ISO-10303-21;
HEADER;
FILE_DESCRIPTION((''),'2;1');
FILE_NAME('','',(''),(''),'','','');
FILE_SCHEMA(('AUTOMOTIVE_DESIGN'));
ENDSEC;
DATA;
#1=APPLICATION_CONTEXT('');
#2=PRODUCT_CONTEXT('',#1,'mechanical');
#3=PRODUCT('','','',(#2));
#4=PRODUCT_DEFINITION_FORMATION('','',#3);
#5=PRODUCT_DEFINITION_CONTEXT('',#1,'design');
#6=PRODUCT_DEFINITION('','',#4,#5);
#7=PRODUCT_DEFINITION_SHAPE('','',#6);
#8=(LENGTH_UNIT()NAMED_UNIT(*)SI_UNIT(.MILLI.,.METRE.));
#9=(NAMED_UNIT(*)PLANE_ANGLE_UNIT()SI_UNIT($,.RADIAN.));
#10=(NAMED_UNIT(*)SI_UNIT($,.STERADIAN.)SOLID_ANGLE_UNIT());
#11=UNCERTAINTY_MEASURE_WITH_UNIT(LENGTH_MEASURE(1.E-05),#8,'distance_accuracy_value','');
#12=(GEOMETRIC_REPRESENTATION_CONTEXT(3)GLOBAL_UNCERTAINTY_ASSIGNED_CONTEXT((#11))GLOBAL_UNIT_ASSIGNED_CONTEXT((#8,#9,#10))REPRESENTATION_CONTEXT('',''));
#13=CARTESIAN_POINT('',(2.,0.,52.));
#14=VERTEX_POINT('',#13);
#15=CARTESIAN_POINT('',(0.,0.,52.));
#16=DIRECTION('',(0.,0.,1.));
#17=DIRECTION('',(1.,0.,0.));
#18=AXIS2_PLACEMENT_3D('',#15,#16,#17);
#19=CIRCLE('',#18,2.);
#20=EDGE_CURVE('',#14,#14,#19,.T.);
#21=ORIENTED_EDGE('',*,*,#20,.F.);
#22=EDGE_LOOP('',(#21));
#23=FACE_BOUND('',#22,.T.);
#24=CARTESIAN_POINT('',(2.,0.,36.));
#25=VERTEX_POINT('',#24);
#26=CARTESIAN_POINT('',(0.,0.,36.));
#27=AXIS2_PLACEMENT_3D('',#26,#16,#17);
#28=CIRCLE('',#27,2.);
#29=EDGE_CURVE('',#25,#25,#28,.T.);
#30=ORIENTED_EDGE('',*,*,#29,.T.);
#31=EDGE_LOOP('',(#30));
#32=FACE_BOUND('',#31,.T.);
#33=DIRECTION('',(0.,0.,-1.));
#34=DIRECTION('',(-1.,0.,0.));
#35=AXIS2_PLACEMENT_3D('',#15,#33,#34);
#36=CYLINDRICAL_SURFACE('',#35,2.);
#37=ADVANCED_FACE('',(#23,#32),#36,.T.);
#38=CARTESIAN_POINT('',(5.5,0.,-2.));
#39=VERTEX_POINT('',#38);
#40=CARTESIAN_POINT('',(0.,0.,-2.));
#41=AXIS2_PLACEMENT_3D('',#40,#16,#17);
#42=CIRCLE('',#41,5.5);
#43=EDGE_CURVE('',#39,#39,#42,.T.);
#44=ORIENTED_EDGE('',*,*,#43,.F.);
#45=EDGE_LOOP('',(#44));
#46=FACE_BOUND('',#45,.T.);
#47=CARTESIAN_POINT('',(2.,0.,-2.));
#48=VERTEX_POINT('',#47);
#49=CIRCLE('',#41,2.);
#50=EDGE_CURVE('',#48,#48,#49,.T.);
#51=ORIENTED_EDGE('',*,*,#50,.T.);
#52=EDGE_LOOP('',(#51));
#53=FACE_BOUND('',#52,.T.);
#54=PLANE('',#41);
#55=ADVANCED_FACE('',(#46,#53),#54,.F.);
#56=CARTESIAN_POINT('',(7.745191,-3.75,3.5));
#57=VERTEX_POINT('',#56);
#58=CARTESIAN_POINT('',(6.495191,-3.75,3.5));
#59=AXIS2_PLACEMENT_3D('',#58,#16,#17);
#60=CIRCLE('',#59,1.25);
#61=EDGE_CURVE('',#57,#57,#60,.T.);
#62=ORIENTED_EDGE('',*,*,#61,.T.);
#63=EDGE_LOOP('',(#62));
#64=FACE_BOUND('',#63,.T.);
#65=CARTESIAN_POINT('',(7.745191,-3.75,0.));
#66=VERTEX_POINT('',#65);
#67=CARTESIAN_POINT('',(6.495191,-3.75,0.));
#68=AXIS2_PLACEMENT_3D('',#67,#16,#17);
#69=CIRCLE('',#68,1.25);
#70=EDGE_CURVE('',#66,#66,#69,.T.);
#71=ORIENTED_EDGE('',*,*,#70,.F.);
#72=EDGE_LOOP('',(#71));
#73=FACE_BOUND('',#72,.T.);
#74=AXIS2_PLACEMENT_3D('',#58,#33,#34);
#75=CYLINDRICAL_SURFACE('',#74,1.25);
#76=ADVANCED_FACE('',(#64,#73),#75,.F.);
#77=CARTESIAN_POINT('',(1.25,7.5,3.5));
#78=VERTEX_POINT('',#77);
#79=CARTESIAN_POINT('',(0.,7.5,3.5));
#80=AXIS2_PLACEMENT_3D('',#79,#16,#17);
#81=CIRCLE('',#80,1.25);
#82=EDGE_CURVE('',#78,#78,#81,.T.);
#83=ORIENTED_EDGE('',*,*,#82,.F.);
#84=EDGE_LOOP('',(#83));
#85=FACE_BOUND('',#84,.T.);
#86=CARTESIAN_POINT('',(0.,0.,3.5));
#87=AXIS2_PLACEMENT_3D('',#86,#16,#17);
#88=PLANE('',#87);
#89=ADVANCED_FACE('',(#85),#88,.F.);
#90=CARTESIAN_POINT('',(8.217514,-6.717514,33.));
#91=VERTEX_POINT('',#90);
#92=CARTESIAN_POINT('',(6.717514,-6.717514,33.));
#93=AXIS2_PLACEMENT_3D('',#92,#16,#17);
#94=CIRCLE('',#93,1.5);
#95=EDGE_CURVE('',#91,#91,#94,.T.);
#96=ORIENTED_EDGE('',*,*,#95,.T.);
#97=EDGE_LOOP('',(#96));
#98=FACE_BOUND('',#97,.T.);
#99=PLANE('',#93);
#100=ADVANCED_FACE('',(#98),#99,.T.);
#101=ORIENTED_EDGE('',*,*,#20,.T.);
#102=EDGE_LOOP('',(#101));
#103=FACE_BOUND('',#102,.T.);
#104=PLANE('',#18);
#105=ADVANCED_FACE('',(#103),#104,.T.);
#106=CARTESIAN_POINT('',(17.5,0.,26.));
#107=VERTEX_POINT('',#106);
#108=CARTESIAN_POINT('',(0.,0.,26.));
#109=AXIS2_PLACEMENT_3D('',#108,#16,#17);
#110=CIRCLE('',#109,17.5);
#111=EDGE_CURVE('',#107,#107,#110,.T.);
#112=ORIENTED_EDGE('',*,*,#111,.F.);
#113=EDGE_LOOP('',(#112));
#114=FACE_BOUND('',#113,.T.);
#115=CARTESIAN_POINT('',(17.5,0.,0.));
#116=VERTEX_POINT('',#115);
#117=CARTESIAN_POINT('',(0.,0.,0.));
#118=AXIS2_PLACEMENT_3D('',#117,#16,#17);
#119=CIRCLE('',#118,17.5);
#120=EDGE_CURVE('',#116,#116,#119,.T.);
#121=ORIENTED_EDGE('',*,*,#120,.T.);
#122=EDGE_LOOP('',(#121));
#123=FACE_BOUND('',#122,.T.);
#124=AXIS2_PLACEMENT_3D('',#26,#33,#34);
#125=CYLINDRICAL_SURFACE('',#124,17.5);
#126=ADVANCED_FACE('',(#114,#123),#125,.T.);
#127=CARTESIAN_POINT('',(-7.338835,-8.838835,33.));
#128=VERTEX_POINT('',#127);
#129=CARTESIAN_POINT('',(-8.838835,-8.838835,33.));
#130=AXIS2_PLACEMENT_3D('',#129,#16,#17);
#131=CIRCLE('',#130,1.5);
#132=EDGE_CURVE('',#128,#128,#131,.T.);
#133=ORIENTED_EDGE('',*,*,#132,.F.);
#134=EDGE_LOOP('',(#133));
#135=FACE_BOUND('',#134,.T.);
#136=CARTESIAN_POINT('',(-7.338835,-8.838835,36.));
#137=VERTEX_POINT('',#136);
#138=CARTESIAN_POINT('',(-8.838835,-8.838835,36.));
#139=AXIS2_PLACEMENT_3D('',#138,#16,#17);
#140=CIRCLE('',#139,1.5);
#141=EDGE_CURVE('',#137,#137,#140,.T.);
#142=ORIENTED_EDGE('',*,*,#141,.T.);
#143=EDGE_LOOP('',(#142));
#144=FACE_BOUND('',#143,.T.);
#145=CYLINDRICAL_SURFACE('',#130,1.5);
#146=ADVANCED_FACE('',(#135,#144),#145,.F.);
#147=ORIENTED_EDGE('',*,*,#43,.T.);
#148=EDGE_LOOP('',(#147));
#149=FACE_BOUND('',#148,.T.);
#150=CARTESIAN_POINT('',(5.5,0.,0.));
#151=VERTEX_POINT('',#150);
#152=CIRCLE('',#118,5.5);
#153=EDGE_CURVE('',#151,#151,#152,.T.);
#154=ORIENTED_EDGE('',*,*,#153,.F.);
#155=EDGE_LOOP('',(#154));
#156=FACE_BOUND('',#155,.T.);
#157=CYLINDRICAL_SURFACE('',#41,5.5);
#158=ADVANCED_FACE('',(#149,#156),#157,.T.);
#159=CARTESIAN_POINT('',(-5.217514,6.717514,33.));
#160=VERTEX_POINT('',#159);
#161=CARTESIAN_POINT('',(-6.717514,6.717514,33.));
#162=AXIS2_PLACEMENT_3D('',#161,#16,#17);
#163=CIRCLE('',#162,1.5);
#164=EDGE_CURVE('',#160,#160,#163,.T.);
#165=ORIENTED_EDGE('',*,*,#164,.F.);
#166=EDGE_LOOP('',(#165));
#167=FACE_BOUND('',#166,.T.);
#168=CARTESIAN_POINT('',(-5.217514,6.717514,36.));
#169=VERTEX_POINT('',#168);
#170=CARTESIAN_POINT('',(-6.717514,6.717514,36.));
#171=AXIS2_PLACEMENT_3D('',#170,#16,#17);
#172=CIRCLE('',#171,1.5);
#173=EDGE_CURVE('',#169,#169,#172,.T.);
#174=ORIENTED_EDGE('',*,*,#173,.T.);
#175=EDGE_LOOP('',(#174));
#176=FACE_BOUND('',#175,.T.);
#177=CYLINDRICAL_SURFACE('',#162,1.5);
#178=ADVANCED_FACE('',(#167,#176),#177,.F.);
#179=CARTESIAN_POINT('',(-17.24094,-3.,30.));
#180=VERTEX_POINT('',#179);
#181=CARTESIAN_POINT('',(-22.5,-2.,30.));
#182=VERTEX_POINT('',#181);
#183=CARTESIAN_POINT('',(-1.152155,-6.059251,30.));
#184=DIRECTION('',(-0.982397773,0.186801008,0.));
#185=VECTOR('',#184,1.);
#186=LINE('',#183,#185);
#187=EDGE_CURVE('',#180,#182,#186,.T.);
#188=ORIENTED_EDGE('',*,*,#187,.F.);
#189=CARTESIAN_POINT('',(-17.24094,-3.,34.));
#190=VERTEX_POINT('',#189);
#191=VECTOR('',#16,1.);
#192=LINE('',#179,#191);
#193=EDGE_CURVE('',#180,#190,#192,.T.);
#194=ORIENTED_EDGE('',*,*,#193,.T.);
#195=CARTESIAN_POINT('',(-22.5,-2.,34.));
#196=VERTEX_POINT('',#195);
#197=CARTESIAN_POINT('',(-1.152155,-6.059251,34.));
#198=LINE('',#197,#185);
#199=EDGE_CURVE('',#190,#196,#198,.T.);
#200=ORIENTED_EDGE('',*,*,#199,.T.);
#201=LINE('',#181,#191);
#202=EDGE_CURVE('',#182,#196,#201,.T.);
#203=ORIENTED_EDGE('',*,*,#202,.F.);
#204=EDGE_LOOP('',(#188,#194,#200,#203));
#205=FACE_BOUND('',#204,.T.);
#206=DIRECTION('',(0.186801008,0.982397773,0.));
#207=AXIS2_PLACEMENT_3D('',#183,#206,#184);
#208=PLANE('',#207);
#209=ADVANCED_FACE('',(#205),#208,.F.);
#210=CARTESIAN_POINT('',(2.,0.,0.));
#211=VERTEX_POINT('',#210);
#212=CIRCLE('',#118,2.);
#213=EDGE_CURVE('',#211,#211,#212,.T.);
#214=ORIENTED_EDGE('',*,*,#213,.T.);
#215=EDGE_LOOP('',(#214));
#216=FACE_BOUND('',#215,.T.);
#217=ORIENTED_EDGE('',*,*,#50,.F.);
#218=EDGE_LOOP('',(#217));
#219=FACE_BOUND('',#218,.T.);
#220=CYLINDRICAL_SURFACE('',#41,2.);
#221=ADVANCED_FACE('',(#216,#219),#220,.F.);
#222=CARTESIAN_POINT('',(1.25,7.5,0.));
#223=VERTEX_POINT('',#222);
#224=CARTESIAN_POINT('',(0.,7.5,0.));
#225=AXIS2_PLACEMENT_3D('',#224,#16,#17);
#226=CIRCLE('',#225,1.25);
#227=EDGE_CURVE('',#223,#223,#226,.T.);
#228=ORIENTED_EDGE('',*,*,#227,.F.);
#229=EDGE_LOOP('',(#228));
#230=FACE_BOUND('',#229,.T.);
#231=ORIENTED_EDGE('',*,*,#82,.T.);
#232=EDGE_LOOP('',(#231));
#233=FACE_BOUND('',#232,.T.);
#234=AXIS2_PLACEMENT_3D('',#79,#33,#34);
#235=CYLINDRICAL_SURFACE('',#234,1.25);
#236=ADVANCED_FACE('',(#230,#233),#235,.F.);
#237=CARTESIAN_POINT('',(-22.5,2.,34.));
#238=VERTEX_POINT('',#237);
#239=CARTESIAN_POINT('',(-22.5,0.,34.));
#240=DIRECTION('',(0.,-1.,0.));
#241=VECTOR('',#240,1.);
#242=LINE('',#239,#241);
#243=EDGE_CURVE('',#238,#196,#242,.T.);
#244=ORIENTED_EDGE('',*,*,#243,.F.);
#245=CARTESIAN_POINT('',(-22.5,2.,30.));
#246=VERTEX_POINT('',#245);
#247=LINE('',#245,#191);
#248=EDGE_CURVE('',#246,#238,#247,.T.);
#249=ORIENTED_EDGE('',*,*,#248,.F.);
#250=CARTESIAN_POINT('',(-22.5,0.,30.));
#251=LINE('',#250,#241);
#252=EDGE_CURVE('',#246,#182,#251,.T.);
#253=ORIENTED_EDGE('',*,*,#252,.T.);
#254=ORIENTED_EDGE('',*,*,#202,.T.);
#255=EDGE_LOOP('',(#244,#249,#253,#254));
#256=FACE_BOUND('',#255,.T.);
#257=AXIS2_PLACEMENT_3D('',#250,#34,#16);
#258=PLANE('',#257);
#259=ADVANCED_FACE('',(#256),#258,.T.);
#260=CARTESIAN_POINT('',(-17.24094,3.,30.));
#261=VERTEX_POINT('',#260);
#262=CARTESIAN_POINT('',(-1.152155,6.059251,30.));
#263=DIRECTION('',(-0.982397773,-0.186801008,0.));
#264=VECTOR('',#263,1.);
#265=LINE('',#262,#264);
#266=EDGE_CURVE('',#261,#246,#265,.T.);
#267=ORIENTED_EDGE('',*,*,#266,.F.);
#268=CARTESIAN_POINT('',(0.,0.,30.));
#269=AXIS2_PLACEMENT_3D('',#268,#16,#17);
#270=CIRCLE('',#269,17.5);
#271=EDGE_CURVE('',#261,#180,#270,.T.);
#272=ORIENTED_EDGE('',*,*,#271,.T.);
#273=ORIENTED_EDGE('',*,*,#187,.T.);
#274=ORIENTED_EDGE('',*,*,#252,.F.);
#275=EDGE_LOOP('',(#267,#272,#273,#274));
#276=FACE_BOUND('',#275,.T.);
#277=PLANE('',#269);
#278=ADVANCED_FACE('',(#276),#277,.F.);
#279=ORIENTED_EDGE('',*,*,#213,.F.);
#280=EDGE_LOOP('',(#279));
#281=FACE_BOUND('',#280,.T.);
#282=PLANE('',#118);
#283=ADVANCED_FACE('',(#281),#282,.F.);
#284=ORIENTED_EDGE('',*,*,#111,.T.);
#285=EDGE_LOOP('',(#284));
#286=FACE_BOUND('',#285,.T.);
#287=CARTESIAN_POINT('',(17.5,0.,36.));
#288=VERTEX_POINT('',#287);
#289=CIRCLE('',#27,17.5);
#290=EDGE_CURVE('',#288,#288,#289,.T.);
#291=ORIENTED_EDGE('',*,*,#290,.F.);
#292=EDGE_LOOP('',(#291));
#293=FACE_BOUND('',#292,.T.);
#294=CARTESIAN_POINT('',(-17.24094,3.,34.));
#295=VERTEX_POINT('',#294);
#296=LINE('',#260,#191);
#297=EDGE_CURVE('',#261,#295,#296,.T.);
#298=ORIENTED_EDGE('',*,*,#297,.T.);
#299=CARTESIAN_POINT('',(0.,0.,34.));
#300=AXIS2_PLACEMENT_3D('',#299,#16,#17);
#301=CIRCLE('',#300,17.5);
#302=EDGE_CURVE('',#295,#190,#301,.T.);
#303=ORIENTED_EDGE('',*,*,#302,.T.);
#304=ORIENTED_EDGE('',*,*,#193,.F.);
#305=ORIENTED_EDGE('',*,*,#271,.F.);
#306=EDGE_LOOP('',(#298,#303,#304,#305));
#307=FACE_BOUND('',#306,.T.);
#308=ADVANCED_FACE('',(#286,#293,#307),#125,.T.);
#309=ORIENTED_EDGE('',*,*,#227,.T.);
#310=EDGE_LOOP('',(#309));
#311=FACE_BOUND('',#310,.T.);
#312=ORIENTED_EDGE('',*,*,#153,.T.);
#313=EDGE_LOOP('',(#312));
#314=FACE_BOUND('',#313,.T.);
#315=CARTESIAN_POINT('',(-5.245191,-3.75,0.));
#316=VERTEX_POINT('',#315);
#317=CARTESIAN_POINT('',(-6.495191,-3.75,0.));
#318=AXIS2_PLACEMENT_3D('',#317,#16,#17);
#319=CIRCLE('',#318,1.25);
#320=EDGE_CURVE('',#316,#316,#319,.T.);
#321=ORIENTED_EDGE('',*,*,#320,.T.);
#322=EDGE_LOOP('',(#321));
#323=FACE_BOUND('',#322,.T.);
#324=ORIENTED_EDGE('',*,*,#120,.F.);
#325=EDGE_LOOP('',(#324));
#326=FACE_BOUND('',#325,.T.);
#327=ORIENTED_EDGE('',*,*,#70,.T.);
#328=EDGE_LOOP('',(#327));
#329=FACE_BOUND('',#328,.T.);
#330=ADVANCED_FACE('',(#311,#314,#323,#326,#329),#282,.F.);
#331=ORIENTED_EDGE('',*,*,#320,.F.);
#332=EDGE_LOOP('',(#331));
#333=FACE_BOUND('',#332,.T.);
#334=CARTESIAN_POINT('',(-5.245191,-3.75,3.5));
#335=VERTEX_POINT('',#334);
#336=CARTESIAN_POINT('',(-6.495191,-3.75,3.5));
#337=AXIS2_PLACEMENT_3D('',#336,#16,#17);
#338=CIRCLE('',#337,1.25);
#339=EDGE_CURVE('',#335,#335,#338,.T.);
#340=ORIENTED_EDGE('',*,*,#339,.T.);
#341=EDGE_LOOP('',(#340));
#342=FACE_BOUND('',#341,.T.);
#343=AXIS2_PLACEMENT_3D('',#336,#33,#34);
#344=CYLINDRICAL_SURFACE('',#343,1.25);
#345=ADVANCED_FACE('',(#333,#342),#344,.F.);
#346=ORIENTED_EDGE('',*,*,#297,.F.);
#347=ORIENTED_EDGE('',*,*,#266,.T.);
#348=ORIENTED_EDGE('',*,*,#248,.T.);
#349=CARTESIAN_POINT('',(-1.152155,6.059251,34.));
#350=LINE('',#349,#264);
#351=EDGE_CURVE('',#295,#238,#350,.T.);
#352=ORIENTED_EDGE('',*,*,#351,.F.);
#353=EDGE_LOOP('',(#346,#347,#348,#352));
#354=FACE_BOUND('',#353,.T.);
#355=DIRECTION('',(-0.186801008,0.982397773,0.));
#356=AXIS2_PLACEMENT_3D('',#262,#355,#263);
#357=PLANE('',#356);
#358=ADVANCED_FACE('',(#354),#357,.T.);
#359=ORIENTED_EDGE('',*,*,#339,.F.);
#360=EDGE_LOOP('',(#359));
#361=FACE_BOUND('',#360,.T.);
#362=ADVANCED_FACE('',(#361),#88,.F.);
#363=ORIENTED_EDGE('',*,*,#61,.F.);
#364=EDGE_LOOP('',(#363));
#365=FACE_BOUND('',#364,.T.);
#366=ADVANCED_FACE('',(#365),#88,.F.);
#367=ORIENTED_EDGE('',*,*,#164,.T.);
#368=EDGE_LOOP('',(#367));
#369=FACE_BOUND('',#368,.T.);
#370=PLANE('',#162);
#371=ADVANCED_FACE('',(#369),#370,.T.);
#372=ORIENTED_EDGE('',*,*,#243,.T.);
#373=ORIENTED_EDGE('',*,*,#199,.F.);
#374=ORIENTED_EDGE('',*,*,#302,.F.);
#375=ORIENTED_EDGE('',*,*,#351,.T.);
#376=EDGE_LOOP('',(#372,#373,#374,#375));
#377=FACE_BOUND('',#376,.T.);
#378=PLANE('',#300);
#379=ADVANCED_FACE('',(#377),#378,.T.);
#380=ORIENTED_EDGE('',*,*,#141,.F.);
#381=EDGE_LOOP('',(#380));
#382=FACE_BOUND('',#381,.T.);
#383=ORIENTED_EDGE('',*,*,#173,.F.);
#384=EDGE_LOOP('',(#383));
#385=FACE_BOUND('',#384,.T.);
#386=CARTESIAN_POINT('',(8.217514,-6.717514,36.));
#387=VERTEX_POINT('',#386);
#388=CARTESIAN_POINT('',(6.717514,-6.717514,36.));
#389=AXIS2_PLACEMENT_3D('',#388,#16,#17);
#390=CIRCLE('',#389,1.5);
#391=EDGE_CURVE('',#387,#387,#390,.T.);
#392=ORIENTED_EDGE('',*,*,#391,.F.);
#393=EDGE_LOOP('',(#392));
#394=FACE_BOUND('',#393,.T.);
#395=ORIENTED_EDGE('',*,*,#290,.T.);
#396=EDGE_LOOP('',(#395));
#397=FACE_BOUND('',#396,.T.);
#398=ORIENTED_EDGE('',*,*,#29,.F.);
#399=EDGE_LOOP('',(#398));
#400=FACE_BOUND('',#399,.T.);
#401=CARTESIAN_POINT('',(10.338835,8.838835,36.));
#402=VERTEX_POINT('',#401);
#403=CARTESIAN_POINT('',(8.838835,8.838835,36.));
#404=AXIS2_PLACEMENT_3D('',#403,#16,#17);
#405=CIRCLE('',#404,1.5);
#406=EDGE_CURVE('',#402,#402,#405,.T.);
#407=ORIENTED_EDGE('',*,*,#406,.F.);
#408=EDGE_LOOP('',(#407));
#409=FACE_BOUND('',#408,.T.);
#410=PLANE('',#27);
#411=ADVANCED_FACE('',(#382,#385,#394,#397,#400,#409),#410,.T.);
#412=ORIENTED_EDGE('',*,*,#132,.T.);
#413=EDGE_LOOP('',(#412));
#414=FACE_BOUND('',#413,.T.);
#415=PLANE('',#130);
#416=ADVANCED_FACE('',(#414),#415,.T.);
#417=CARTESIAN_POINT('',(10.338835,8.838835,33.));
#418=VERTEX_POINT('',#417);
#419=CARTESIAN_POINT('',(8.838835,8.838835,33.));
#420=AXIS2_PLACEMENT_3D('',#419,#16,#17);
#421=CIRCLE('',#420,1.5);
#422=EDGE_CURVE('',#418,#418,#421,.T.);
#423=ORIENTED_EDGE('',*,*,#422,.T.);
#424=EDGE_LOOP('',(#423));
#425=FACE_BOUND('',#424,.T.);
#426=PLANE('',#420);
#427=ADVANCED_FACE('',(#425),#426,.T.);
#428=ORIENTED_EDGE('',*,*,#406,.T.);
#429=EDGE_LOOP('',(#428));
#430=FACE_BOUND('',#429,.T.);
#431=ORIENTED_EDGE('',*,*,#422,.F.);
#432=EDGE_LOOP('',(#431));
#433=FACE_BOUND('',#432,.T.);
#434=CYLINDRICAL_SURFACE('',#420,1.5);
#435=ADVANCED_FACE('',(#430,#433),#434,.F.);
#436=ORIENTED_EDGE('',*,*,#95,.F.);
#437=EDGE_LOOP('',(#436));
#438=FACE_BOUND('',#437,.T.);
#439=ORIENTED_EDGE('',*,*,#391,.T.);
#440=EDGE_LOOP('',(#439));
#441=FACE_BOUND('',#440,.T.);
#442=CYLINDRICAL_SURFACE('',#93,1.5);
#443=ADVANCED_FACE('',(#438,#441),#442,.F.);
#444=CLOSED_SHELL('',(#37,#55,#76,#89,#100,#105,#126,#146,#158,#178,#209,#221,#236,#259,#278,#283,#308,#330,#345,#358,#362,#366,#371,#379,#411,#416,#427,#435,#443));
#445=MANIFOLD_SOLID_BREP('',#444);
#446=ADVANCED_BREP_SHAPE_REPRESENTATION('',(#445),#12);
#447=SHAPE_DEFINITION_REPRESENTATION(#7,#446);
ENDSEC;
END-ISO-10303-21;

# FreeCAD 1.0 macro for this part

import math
import FreeCAD as App
import Part
import Sketcher
from FreeCAD import Vector

doc = App.newDocument("Part")
body = doc.addObject("PartDesign::Body", "Body")

# Sketch on XY plane
sketch1 = body.newObject("Sketcher::SketchObject", "Sketch")
sketch1.AttachmentSupport = (doc.getObject("XY_Plane"), [""])
sketch1.MapMode = "FlatFace"
sketch1.addGeometry(Part.Circle(Vector(0, 0, 0), Vector(0, 0, 1), 18), False)
sketch1.addConstraint(Sketcher.Constraint("Coincident", 0, 3, -1, 1))
sketch1.addConstraint(Sketcher.Constraint("Diameter", 0, 35.0))
pad1 = body.newObject("PartDesign::Pad", "Pad")
pad1.Profile = sketch1
pad1.Length = 36

# Sketch on XY plane
sketch2 = body.newObject("Sketcher::SketchObject", "Sketch001")
sketch2.AttachmentSupport = (doc.getObject("XY_Plane"), [""])
sketch2.MapMode = "FlatFace"
sketch2.AttachmentOffset = App.Placement(Vector(0, 0, 36), App.Rotation())
sketch2.addGeometry(Part.Circle(Vector(0, 0, 0), Vector(0, 0, 1), 2), False)
sketch2.addConstraint(Sketcher.Constraint("Coincident", 0, 3, -1, 1))
sketch2.addConstraint(Sketcher.Constraint("Diameter", 0, 4.0))
pad2 = body.newObject("PartDesign::Pad", "Pad001")
pad2.Profile = sketch2
pad2.Length = 16

# Sketch on XY plane
sketch3 = body.newObject("Sketcher::SketchObject", "Sketch002")
sketch3.AttachmentSupport = (doc.getObject("XY_Plane"), [""])
sketch3.MapMode = "FlatFace"
sketch3.AttachmentOffset = App.Placement(Vector(0, 0, -2), App.Rotation())
sketch3.addGeometry(Part.Circle(Vector(0, 0, 0), Vector(0, 0, 1), 5.5), False)
sketch3.addGeometry(Part.Circle(Vector(0, 0, 0), Vector(0, 0, 1), 2), False)
sketch3.addConstraint(Sketcher.Constraint("Coincident", 0, 3, -1, 1))
sketch3.addConstraint(Sketcher.Constraint("Coincident", 1, 3, -1, 1))
sketch3.addConstraint(Sketcher.Constraint("Diameter", 0, 11.0))
sketch3.addConstraint(Sketcher.Constraint("Diameter", 1, 4.0))
pad3 = body.newObject("PartDesign::Pad", "Pad002")
pad3.Profile = sketch3
pad3.Length = 2

# Sketch on XY plane
sketch4 = body.newObject("Sketcher::SketchObject", "Sketch003")
sketch4.AttachmentSupport = (doc.getObject("XY_Plane"), [""])
sketch4.MapMode = "FlatFace"
sketch4.addGeometry(Part.Circle(Vector(0, 7.5, 0), Vector(0, 0, 1), 1.2), False)
sketch4.addGeometry(Part.Circle(Vector(6.5, -3.8, 0), Vector(0, 0, 1), 1.2), False)
sketch4.addGeometry(Part.Circle(Vector(-6.5, -3.8, 0), Vector(0, 0, 1), 1.2), False)
sketch4.addConstraint(Sketcher.Constraint("Equal", 0, 1))
sketch4.addConstraint(Sketcher.Constraint("Equal", 1, 2))
sketch4.addConstraint(Sketcher.Constraint("Symmetric", 1, 3, 2, 3, -2))
sketch4.addConstraint(Sketcher.Constraint("PointOnObject", 0, 3, -2))
sketch4.addConstraint(Sketcher.Constraint("Diameter", 0, 2.5))
sketch4.addConstraint(Sketcher.Constraint("DistanceY", -1, 1, 0, 3, 7.5))
sketch4.addConstraint(Sketcher.Constraint("DistanceY", 1, 3, -1, 1, 3.75))
sketch4.addConstraint(Sketcher.Constraint("DistanceX", -1, 1, 1, 3, 6.495191))
pocket1 = body.newObject("PartDesign::Pocket", "Pocket")
pocket1.Profile = sketch4
pocket1.Length = 3.5
pocket1.Reversed = True

# Sketch on XY plane
sketch5 = body.newObject("Sketcher::SketchObject", "Sketch004")
sketch5.AttachmentSupport = (doc.getObject("XY_Plane"), [""])
sketch5.MapMode = "FlatFace"
sketch5.AttachmentOffset = App.Placement(Vector(0, 0, 36), App.Rotation())
sketch5.addGeometry(Part.Circle(Vector(8.8, 8.8, 0), Vector(0, 0, 1), 1.5), False)
sketch5.addGeometry(Part.Circle(Vector(-6.7, 6.7, 0), Vector(0, 0, 1), 1.5), False)
sketch5.addGeometry(Part.Circle(Vector(-8.8, -8.8, 0), Vector(0, 0, 1), 1.5), False)
sketch5.addGeometry(Part.Circle(Vector(6.7, -6.7, 0), Vector(0, 0, 1), 1.5), False)
sketch5.addConstraint(Sketcher.Constraint("Equal", 0, 1))
sketch5.addConstraint(Sketcher.Constraint("Equal", 1, 2))
sketch5.addConstraint(Sketcher.Constraint("Equal", 2, 3))
sketch5.addConstraint(Sketcher.Constraint("Symmetric", 0, 3, 2, 3, -1, 1))
sketch5.addConstraint(Sketcher.Constraint("Symmetric", 1, 3, 3, 3, -1, 1))
sketch5.addConstraint(Sketcher.Constraint("Diameter", 0, 3.0))
sketch5.addConstraint(Sketcher.Constraint("DistanceX", 1, 3, 0, 3, 15.556349))
sketch5.addConstraint(Sketcher.Constraint("DistanceY", 1, 3, 0, 3, 2.12132))
sketch5.addConstraint(Sketcher.Constraint("DistanceX", 2, 3, 1, 3, 2.12132))
sketch5.addConstraint(Sketcher.Constraint("DistanceY", 2, 3, 1, 3, 15.556349))
pocket2 = body.newObject("PartDesign::Pocket", "Pocket001")
pocket2.Profile = sketch5
pocket2.Length = 3

# Sketch on XY plane
sketch6 = body.newObject("Sketcher::SketchObject", "Sketch005")
sketch6.AttachmentSupport = (doc.getObject("XY_Plane"), [""])
sketch6.MapMode = "FlatFace"
sketch6.AttachmentOffset = App.Placement(Vector(0, 0, 30), App.Rotation())
sketch6.addGeometry(Part.ArcOfCircle(Part.Circle(Vector(0, 0, 0), Vector(0, 0, 1), 17.5), math.radians(170.13), math.radians(189.87)), False)
sketch6.addGeometry(Part.LineSegment(Vector(-17.2, 3, 0), Vector(-22.5, 2, 0)), False)
sketch6.addGeometry(Part.LineSegment(Vector(-22.5, 2, 0), Vector(-22.5, -2, 0)), False)
sketch6.addGeometry(Part.LineSegment(Vector(-22.5, -2, 0), Vector(-17.2, -3, 0)), False)
sketch6.addConstraint(Sketcher.Constraint("Coincident", 0, 1, 1, 1))
sketch6.addConstraint(Sketcher.Constraint("Coincident", 1, 2, 2, 1))
sketch6.addConstraint(Sketcher.Constraint("Coincident", 2, 2, 3, 1))
sketch6.addConstraint(Sketcher.Constraint("Coincident", 3, 2, 0, 2))
sketch6.addConstraint(Sketcher.Constraint("Vertical", 2))
sketch6.addConstraint(Sketcher.Constraint("Coincident", 0, 3, -1, 1))
sketch6.addConstraint(Sketcher.Constraint("Vertical", 0, 1, 3, 2))
sketch6.addConstraint(Sketcher.Constraint("Equal", 1, 3))
sketch6.addConstraint(Sketcher.Constraint("Radius", 0, 17.5))
sketch6.addConstraint(Sketcher.Constraint("DistanceY", 2, 2, 2, 1, 4.0))
sketch6.addConstraint(Sketcher.Constraint("DistanceY", -1, 1, 0, 1, 3.0))
sketch6.addConstraint(Sketcher.Constraint("DistanceX", 1, 2, -1, 1, 22.5))
pad4 = body.newObject("PartDesign::Pad", "Pad003")
pad4.Profile = sketch6
pad4.Length = 4

doc.recompute()
